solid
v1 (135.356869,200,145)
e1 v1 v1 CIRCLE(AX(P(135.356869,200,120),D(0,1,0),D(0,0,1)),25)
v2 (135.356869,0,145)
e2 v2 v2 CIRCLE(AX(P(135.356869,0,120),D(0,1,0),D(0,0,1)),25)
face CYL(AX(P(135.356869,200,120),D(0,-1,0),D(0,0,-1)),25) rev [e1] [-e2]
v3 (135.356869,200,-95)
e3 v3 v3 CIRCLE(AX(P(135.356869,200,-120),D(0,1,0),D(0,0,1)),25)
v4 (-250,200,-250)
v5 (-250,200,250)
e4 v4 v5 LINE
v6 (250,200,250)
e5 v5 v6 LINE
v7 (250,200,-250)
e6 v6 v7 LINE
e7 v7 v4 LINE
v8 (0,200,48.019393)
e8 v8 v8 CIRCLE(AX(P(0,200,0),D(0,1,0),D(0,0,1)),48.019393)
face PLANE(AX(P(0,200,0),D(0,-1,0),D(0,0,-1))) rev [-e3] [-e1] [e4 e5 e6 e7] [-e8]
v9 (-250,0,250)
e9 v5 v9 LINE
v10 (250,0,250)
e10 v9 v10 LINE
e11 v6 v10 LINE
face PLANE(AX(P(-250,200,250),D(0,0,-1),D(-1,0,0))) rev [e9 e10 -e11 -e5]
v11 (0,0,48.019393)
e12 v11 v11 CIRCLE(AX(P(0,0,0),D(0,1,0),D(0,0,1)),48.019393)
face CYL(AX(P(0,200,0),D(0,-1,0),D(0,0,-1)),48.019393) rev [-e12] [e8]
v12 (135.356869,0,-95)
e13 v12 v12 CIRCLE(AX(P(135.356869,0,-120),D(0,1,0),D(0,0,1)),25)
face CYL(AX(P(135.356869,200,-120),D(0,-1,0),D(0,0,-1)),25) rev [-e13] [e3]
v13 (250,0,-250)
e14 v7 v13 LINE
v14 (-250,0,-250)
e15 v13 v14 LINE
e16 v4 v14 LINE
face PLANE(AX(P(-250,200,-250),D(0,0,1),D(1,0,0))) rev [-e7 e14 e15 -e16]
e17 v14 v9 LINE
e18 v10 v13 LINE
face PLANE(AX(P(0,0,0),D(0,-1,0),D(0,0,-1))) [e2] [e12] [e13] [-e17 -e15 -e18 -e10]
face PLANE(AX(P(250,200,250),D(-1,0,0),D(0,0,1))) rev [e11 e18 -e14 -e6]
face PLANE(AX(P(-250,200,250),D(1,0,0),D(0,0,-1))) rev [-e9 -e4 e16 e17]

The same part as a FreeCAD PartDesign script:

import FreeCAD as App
import Part
import Sketcher
from FreeCAD import Vector
Q = App.Units.Quantity

doc = App.newDocument("Part")
body = doc.addObject("PartDesign::Body", "Body")

# Sketch on XZ plane
sketch1 = body.newObject("Sketcher::SketchObject", "Sketch")
sketch1.AttachmentSupport = (doc.getObject("XZ_Plane"), [""])
sketch1.MapMode = "FlatFace"
sketch1.addGeometry([
    Part.LineSegment(Vector(-250, -250, 0), Vector(-250, 250, 0)),  # 0
    Part.LineSegment(Vector(-250, 250, 0), Vector(250, 250, 0)),  # 1
    Part.LineSegment(Vector(250, 250, 0), Vector(250, -250, 0)),  # 2
    Part.LineSegment(Vector(250, -250, 0), Vector(-250, -250, 0)),  # 3
    Part.Circle(Vector(135, 120, 0), Vector(0, 0, 1), 25),  # 4
    Part.Circle(Vector(0, 0, 0), Vector(0, 0, 1), 48),  # 5
    Part.Circle(Vector(135, -120, 0), Vector(0, 0, 1), 25),  # 6
], False)
sketch1.addConstraint([
    Sketcher.Constraint("Coincident", 0, 2, 1, 1),
    Sketcher.Constraint("Coincident", 1, 2, 2, 1),
    Sketcher.Constraint("Coincident", 2, 2, 3, 1),
    Sketcher.Constraint("Coincident", 3, 2, 0, 1),
    Sketcher.Constraint("Vertical", 0),
    Sketcher.Constraint("Horizontal", 1),
    Sketcher.Constraint("Vertical", 2),
    Sketcher.Constraint("Horizontal", 3),
    Sketcher.Constraint("Coincident", 5, 3, -1, 1),
    Sketcher.Constraint("Equal", 4, 6),
    Sketcher.Constraint("Symmetric", 0, 2, 2, 2, -1, 1),
    Sketcher.Constraint("Symmetric", 4, 3, 6, 3, -1),
    Sketcher.Constraint("Equal", 3, 0),
    Sketcher.Constraint("Diameter", 4, Q("50 mm")),
    Sketcher.Constraint("DistanceX", 1, 1, 1, 2, Q("500 mm")),
    Sketcher.Constraint("DistanceY", -1, 1, 4, 3, Q("120 mm")),
    Sketcher.Constraint("Diameter", 5, Q("96.038785 mm")),
    Sketcher.Constraint("DistanceX", -1, 1, 4, 3, Q("135.356869 mm")),
])
pad1 = body.newObject("PartDesign::Pad", "Pad")
pad1.Profile = sketch1
pad1.Length = 200
pad1.Reversed = True

doc.recompute()
